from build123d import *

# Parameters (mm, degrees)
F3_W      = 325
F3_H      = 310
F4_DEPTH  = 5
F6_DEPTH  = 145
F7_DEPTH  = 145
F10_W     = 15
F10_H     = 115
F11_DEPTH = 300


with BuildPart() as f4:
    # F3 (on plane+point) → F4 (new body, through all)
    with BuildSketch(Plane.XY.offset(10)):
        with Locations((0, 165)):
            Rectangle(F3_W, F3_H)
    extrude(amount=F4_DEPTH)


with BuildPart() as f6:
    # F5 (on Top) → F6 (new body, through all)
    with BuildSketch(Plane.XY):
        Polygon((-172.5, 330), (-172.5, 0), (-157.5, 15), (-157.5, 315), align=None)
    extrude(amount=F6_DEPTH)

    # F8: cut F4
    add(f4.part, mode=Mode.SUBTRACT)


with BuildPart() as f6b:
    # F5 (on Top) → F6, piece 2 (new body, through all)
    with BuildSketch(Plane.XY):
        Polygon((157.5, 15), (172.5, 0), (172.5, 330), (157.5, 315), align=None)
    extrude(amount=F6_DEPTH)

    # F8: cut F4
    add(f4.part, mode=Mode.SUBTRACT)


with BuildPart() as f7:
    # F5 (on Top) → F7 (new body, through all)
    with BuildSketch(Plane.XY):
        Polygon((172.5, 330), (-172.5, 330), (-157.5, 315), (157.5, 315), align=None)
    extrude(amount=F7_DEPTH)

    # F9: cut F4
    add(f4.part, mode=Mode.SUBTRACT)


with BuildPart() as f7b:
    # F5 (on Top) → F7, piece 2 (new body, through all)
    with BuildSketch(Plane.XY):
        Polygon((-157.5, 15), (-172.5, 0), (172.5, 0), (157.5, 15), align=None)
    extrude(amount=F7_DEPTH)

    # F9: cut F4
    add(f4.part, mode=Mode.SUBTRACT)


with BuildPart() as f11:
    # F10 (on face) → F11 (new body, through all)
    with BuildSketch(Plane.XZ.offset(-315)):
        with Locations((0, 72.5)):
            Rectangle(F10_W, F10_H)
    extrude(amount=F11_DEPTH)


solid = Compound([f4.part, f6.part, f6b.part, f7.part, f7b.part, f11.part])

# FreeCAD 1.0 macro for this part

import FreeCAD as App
import Part
import Sketcher
from FreeCAD import Vector


def add_polygon(sketch, points):
    """Adds a closed chain of lines whose ends are joined by coincident constraints."""
    first, n = sketch.GeometryCount, len(points)
    for a, b in zip(points, points[1:] + points[:1]):
        sketch.addGeometry(Part.LineSegment(App.Vector(*a, 0), App.Vector(*b, 0)), False)
    for i in range(n):
        sketch.addConstraint(Sketcher.Constraint("Coincident", first + i, 2, first + (i + 1) % n, 1))

doc = App.newDocument("Part")
body = doc.addObject("PartDesign::Body", "Body")

# Sketch on XY plane
sketch1 = doc.addObject("Sketcher::SketchObject", "Sketch")
body.addObject(sketch1)
sketch1.AttachmentSupport = (doc.XY_Plane, [""])
sketch1.MapMode = "FlatFace"
sketch1.AttachmentOffset = App.Placement(Vector(0, 0, 10), App.Rotation())
add_polygon(sketch1, [(-162.5, 320), (-162.5, 10), (162.5, 10), (162.5, 320)])  # lines 0-3
sketch1.addConstraint([
    Sketcher.Constraint("Vertical", 0),
    Sketcher.Constraint("Horizontal", 1),
    Sketcher.Constraint("Vertical", 2),
    Sketcher.Constraint("Horizontal", 3),
    Sketcher.Constraint("DistanceX", 1, 1, 1, 2, 325.0),
    Sketcher.Constraint("DistanceY", 0, 2, 0, 1, 310.0),
    Sketcher.Constraint("DistanceY", -1, 1, 0, 2, 10.0),
    Sketcher.Constraint("DistanceX", 0, 2, -1, 1, 162.5),
])
pad1 = doc.addObject("PartDesign::Pad", "Pad")
body.addObject(pad1)
pad1.Profile = sketch1
pad1.Length = 5
body2 = doc.addObject("PartDesign::Body", "Body001")

# Sketch on XY plane
sketch2 = doc.addObject("Sketcher::SketchObject", "Sketch001")
body2.addObject(sketch2)
sketch2.AttachmentSupport = (doc.getObject("XY_Plane001"), [""])
sketch2.MapMode = "FlatFace"
add_polygon(sketch2, [(-172.5, 330), (-172.5, 0), (-157.5, 15), (-157.5, 315)])  # lines 0-3
sketch2.addConstraint([
    Sketcher.Constraint("Vertical", 0),
    Sketcher.Constraint("Vertical", 2),
    Sketcher.Constraint("PointOnObject", 0, 2, -1),
    Sketcher.Constraint("Perpendicular", 1, 3),
    Sketcher.Constraint("Equal", 1, 3),
    Sketcher.Constraint("DistanceY", 0, 2, 0, 1, 330.0),
    Sketcher.Constraint("DistanceY", 2, 1, 2, 2, 300.0),
    Sketcher.Constraint("DistanceX", 0, 2, -1, 1, 172.5),
])
pad2 = doc.addObject("PartDesign::Pad", "Pad001")
body2.addObject(pad2)
pad2.Profile = sketch2
pad2.Length = 145
doc.recompute()

body3 = doc.addObject("PartDesign::Body", "Body002")
body3.BaseFeature = body
boolean = doc.addObject("PartDesign::Boolean", "Boolean")
body2.addObject(boolean)
boolean.Type = "Cut"
boolean.addObjects([body3])
doc.recompute()
body4 = doc.addObject("PartDesign::Body", "Body003")

# Sketch on XY plane
sketch3 = doc.addObject("Sketcher::SketchObject", "Sketch002")
body4.addObject(sketch3)
sketch3.AttachmentSupport = (doc.getObject("XY_Plane003"), [""])
sketch3.MapMode = "FlatFace"
add_polygon(sketch3, [(157.5, 15), (172.5, 0), (172.5, 330), (157.5, 315)])  # lines 0-3
sketch3.addConstraint([
    Sketcher.Constraint("Vertical", 1),
    Sketcher.Constraint("Vertical", 3),
    Sketcher.Constraint("PointOnObject", 0, 2, -1),
    Sketcher.Constraint("Perpendicular", 0, 2),
    Sketcher.Constraint("Equal", 0, 2),
    Sketcher.Constraint("DistanceY", 1, 1, 1, 2, 330.0),
    Sketcher.Constraint("DistanceY", 3, 2, 3, 1, 300.0),
    Sketcher.Constraint("DistanceX", -1, 1, 0, 2, 172.5),
])
pad3 = doc.addObject("PartDesign::Pad", "Pad002")
body4.addObject(pad3)
pad3.Profile = sketch3
pad3.Length = 145
doc.recompute()

body5 = doc.addObject("PartDesign::Body", "Body004")
body5.BaseFeature = body
boolean2 = doc.addObject("PartDesign::Boolean", "Boolean001")
body4.addObject(boolean2)
boolean2.Type = "Cut"
boolean2.addObjects([body5])
doc.recompute()
body6 = doc.addObject("PartDesign::Body", "Body005")

# Sketch on XY plane
sketch4 = doc.addObject("Sketcher::SketchObject", "Sketch003")
body6.addObject(sketch4)
sketch4.AttachmentSupport = (doc.getObject("XY_Plane005"), [""])
sketch4.MapMode = "FlatFace"
add_polygon(sketch4, [(172.5, 330), (-172.5, 330), (-157.5, 315), (157.5, 315)])  # lines 0-3
sketch4.addConstraint([
    Sketcher.Constraint("Horizontal", 0),
    Sketcher.Constraint("Horizontal", 2),
    Sketcher.Constraint("Perpendicular", 1, 3),
    Sketcher.Constraint("Equal", 1, 3),
    Sketcher.Constraint("DistanceX", 0, 2, 0, 1, 345.0),
    Sketcher.Constraint("DistanceX", 2, 1, 2, 2, 315.0),
    Sketcher.Constraint("DistanceY", -1, 1, 0, 2, 330.0),
    Sketcher.Constraint("DistanceX", 0, 2, -1, 1, 172.5),
])
pad4 = doc.addObject("PartDesign::Pad", "Pad003")
body6.addObject(pad4)
pad4.Profile = sketch4
pad4.Length = 145
doc.recompute()

body7 = doc.addObject("PartDesign::Body", "Body006")
body7.BaseFeature = body
boolean3 = doc.addObject("PartDesign::Boolean", "Boolean002")
body6.addObject(boolean3)
boolean3.Type = "Cut"
boolean3.addObjects([body7])
doc.recompute()
body8 = doc.addObject("PartDesign::Body", "Body007")

# Sketch on XY plane
sketch5 = doc.addObject("Sketcher::SketchObject", "Sketch004")
body8.addObject(sketch5)
sketch5.AttachmentSupport = (doc.getObject("XY_Plane007"), [""])
sketch5.MapMode = "FlatFace"
add_polygon(sketch5, [(-157.5, 15), (-172.5, 0), (172.5, 0), (157.5, 15)])  # lines 0-3
sketch5.addConstraint([
    Sketcher.Constraint("Horizontal", 1),
    Sketcher.Constraint("Horizontal", 3),
    Sketcher.Constraint("Symmetric", 0, 2, 1, 2, -1, 1),
    Sketcher.Constraint("Perpendicular", 0, 2),
    Sketcher.Constraint("Equal", 0, 2),
    Sketcher.Constraint("DistanceX", 1, 1, 1, 2, 345.0),
    Sketcher.Constraint("DistanceX", 3, 2, 3, 1, 315.0),
])
pad5 = doc.addObject("PartDesign::Pad", "Pad004")
body8.addObject(pad5)
pad5.Profile = sketch5
pad5.Length = 145
doc.recompute()

body9 = doc.addObject("PartDesign::Body", "Body008")
body9.BaseFeature = body
boolean4 = doc.addObject("PartDesign::Boolean", "Boolean003")
body8.addObject(boolean4)
boolean4.Type = "Cut"
boolean4.addObjects([body9])
doc.recompute()
body10 = doc.addObject("PartDesign::Body", "Body009")

# Sketch on XZ plane
sketch6 = doc.addObject("Sketcher::SketchObject", "Sketch005")
body10.addObject(sketch6)
sketch6.AttachmentSupport = (doc.getObject("XZ_Plane009"), [""])
sketch6.MapMode = "FlatFace"
sketch6.AttachmentOffset = App.Placement(Vector(0, 0, -315), App.Rotation())
add_polygon(sketch6, [(-7.5, 130), (-7.5, 15), (7.5, 15), (7.5, 130)])  # lines 0-3
sketch6.addConstraint([
    Sketcher.Constraint("Vertical", 0),
    Sketcher.Constraint("Horizontal", 1),
    Sketcher.Constraint("Vertical", 2),
    Sketcher.Constraint("Horizontal", 3),
    Sketcher.Constraint("DistanceX", 1, 1, 1, 2, 15.0),
    Sketcher.Constraint("DistanceY", 0, 2, 0, 1, 115.0),
    Sketcher.Constraint("DistanceY", -1, 1, 0, 2, 15.0),
    Sketcher.Constraint("DistanceX", 0, 2, -1, 1, 7.5),
])
pad6 = doc.addObject("PartDesign::Pad", "Pad005")
body10.addObject(pad6)
pad6.Profile = sketch6
pad6.Length = 300

doc.recompute()
